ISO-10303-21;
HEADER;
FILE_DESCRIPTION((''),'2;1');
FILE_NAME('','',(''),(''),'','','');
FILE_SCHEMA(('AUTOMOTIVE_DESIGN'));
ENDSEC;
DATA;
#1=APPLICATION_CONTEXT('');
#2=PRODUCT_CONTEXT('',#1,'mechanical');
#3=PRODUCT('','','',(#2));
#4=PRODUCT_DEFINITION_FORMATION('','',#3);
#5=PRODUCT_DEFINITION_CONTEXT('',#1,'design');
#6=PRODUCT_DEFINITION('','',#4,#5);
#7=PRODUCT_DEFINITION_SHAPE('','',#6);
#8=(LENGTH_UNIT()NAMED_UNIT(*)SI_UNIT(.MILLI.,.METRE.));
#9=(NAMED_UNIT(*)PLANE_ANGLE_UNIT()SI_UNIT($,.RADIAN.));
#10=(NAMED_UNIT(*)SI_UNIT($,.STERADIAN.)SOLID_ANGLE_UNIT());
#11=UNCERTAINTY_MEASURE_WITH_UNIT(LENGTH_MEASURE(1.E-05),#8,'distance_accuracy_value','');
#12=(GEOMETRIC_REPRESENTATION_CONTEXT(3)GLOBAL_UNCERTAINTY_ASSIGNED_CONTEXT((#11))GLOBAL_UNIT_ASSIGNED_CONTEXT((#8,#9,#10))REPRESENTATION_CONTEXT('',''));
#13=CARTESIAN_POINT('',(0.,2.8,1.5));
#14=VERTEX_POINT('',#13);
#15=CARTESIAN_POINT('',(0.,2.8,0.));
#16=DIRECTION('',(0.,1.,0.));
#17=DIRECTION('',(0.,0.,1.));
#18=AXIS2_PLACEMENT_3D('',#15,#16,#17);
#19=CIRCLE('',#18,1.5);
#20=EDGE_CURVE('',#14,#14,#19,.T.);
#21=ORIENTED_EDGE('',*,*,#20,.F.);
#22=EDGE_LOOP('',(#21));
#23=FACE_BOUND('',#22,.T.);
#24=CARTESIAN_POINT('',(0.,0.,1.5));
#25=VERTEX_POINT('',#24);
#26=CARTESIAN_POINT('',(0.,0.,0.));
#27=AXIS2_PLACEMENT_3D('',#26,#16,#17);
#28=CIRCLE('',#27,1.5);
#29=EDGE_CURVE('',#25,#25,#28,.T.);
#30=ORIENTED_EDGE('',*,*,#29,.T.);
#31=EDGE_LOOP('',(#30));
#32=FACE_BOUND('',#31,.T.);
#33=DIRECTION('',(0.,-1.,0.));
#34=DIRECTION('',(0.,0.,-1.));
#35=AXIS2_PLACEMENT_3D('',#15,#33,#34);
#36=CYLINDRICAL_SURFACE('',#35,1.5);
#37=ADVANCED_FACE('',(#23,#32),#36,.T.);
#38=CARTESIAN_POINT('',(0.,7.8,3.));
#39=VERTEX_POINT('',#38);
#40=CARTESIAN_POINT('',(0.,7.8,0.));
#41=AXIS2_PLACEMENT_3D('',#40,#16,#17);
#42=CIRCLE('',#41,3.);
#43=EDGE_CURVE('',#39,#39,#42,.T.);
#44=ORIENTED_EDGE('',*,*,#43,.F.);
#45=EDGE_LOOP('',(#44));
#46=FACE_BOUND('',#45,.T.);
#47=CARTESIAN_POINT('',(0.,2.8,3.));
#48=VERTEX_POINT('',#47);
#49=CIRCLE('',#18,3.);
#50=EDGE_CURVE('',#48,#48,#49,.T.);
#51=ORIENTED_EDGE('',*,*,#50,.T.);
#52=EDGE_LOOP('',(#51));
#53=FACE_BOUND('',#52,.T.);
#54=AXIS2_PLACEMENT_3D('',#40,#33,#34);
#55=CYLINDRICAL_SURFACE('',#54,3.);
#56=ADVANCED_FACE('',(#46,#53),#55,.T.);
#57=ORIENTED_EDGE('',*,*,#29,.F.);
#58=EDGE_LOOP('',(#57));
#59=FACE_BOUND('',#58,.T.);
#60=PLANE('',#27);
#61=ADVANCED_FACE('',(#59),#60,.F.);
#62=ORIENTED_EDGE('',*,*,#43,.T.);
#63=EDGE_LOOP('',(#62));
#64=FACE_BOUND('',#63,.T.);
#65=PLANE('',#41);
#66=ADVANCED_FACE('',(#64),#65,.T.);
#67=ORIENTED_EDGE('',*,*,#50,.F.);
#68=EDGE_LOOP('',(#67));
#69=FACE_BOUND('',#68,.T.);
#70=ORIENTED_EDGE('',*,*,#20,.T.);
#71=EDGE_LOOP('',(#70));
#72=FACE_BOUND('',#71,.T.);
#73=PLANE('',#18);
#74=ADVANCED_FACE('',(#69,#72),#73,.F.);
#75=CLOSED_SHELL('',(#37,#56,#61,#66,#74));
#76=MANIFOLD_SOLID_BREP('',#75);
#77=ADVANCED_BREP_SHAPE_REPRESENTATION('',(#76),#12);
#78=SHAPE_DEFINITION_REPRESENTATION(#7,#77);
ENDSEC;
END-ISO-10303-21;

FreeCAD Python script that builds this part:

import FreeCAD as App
import Part
import Sketcher
from FreeCAD import Vector
Q = App.Units.Quantity

doc = App.newDocument("Part")
body = doc.addObject("PartDesign::Body", "Body")

# Sketch on XZ plane
sketch1 = doc.addObject("Sketcher::SketchObject", "Sketch")
body.addObject(sketch1)
sketch1.AttachmentSupport = (doc.XZ_Plane, [""])
sketch1.MapMode = "FlatFace"
sketch1.addGeometry(Part.Circle(Vector(0, 0, 0), Vector(0, 0, 1), 1.5), False)
sketch1.addConstraint([
    Sketcher.Constraint("Coincident", 0, 3, -1, 1),
    Sketcher.Constraint("Diameter", 0, Q("3 mm")),
])
pad1 = doc.addObject("PartDesign::Pad", "Pad")
body.addObject(pad1)
pad1.Profile = sketch1
pad1.Length = 2.8
pad1.Reversed = True

# Sketch on XZ plane
sketch2 = doc.addObject("Sketcher::SketchObject", "Sketch001")
body.addObject(sketch2)
sketch2.AttachmentSupport = (doc.XZ_Plane, [""])
sketch2.MapMode = "FlatFace"
sketch2.AttachmentOffset = App.Placement(Vector(0, 0, -2.8), App.Rotation())
sketch2.addGeometry(Part.Circle(Vector(0, 0, 0), Vector(0, 0, 1), 3), False)
sketch2.addConstraint([
    Sketcher.Constraint("Coincident", 0, 3, -1, 1),
    Sketcher.Constraint("Diameter", 0, Q("6 mm")),
])
pad2 = doc.addObject("PartDesign::Pad", "Pad001")
body.addObject(pad2)
pad2.Profile = sketch2
pad2.Length = 5
pad2.Reversed = True

doc.recompute()
